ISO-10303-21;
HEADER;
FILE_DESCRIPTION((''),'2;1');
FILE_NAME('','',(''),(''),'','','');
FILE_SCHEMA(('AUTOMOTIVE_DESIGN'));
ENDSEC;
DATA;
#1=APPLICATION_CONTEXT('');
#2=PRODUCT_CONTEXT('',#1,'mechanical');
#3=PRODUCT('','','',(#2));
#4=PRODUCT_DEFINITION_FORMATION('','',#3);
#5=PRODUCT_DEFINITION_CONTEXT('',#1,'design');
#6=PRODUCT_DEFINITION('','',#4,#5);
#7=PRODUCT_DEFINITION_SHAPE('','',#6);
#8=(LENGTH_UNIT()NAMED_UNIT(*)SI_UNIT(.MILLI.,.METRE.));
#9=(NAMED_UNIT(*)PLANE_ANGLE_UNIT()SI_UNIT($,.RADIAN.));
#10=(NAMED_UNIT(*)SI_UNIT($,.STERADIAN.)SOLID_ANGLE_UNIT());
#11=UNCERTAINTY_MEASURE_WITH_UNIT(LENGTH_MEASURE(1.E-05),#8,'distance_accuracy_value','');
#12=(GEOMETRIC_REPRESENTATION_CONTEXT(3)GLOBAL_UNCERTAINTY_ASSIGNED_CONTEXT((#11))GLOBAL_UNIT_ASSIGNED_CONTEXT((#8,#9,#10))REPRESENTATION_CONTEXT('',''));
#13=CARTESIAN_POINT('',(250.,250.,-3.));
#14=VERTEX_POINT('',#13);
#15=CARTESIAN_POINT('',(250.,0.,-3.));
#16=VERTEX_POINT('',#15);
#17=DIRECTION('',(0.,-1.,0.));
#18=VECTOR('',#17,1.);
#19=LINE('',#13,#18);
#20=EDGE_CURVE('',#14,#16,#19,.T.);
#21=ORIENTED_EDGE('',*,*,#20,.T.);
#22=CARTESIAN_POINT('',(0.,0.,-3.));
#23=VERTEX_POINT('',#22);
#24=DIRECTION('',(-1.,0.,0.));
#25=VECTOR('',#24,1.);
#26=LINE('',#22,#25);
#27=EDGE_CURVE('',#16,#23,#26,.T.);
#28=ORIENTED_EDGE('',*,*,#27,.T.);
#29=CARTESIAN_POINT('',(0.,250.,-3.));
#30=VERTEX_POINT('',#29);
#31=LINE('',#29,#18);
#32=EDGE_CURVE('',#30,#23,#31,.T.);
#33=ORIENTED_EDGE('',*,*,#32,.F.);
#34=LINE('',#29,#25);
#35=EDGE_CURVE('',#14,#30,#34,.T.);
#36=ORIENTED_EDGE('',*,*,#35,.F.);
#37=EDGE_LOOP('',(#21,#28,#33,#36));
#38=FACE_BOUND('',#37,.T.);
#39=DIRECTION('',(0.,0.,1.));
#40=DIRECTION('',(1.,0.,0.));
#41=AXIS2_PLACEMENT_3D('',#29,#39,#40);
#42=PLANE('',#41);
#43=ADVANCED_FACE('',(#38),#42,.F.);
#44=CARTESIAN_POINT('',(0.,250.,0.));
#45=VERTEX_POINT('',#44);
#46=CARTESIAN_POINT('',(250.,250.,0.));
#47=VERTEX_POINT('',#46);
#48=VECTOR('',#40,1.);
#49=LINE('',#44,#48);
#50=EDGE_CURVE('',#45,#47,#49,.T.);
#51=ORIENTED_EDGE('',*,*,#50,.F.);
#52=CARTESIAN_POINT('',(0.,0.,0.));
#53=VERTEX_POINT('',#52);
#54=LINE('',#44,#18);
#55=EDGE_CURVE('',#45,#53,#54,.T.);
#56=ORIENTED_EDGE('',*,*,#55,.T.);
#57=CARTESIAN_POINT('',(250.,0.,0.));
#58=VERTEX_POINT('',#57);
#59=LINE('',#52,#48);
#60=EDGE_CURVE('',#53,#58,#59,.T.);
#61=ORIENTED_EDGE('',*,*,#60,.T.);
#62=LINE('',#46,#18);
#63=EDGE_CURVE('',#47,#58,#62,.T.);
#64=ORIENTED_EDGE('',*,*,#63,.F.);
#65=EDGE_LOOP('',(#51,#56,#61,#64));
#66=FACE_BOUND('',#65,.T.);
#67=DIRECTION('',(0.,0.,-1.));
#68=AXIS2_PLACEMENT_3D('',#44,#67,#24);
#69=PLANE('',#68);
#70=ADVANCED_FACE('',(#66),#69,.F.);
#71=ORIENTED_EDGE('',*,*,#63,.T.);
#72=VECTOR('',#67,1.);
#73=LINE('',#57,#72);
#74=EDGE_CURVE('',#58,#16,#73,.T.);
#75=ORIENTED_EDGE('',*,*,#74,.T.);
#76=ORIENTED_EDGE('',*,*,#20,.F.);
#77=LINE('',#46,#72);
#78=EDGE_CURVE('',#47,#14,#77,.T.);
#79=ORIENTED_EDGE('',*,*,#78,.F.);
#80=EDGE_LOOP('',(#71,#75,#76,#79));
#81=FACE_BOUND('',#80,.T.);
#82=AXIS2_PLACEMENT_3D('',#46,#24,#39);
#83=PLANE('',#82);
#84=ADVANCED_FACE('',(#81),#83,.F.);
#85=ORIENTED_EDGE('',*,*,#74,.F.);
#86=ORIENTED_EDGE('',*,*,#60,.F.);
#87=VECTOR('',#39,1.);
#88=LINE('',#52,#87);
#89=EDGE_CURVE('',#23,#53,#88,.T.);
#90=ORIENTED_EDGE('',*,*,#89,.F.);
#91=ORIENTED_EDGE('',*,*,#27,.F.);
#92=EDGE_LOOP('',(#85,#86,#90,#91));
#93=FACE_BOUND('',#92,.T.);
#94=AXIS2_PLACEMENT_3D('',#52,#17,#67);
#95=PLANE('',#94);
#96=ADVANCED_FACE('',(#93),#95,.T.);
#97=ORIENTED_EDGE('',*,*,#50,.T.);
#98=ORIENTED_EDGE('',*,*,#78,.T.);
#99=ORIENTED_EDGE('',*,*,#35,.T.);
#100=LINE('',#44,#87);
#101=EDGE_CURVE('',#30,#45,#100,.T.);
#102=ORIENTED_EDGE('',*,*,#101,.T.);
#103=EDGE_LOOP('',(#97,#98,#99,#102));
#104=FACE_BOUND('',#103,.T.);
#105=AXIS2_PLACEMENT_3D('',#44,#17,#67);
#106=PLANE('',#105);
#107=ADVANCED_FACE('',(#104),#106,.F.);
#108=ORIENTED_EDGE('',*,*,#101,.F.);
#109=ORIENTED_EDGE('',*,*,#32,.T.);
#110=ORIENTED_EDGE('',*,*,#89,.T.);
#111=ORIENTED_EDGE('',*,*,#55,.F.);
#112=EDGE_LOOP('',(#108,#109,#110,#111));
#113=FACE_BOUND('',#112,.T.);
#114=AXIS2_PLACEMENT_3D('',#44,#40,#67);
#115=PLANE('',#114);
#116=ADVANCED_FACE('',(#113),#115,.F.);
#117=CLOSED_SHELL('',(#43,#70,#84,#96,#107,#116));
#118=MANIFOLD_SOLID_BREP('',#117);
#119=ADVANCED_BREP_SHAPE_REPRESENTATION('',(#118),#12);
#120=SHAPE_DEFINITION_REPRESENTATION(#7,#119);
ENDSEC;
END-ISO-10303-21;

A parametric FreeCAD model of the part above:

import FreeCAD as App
import Part
import Sketcher
Q = App.Units.Quantity


def add_polygon(sketch, points):
    """Adds a closed chain of lines whose ends are joined by coincident constraints."""
    first, n = sketch.GeometryCount, len(points)
    for a, b in zip(points, points[1:] + points[:1]):
        sketch.addGeometry(Part.LineSegment(App.Vector(*a, 0), App.Vector(*b, 0)), False)
    for i in range(n):
        sketch.addConstraint(Sketcher.Constraint("Coincident", first + i, 2, first + (i + 1) % n, 1))

doc = App.newDocument("Part")
body = doc.addObject("PartDesign::Body", "Body")

sketch1 = body.newObject("Sketcher::SketchObject", "Sketch")
sketch1.AttachmentSupport = (doc.getObject("XZ_Plane"), [""])
sketch1.MapMode = "FlatFace"
add_polygon(sketch1, [(0, -3), (0, 0), (250, 0), (250, -3)])
sketch1.addConstraint([
    Sketcher.Constraint("Vertical", 0),
    Sketcher.Constraint("Horizontal", 1),
    Sketcher.Constraint("Vertical", 2),
    Sketcher.Constraint("Horizontal", 3),
    Sketcher.Constraint("Coincident", 0, 2, -1, 1),
    Sketcher.Constraint("DistanceX", 1, 1, 1, 2, Q("250 mm")),
    Sketcher.Constraint("DistanceY", 0, 1, 0, 2, Q("3 mm")),
])
pad1 = body.newObject("PartDesign::Pad", "Pad")
pad1.Profile = sketch1
pad1.Length = 250
pad1.Reversed = True

doc.recompute()
